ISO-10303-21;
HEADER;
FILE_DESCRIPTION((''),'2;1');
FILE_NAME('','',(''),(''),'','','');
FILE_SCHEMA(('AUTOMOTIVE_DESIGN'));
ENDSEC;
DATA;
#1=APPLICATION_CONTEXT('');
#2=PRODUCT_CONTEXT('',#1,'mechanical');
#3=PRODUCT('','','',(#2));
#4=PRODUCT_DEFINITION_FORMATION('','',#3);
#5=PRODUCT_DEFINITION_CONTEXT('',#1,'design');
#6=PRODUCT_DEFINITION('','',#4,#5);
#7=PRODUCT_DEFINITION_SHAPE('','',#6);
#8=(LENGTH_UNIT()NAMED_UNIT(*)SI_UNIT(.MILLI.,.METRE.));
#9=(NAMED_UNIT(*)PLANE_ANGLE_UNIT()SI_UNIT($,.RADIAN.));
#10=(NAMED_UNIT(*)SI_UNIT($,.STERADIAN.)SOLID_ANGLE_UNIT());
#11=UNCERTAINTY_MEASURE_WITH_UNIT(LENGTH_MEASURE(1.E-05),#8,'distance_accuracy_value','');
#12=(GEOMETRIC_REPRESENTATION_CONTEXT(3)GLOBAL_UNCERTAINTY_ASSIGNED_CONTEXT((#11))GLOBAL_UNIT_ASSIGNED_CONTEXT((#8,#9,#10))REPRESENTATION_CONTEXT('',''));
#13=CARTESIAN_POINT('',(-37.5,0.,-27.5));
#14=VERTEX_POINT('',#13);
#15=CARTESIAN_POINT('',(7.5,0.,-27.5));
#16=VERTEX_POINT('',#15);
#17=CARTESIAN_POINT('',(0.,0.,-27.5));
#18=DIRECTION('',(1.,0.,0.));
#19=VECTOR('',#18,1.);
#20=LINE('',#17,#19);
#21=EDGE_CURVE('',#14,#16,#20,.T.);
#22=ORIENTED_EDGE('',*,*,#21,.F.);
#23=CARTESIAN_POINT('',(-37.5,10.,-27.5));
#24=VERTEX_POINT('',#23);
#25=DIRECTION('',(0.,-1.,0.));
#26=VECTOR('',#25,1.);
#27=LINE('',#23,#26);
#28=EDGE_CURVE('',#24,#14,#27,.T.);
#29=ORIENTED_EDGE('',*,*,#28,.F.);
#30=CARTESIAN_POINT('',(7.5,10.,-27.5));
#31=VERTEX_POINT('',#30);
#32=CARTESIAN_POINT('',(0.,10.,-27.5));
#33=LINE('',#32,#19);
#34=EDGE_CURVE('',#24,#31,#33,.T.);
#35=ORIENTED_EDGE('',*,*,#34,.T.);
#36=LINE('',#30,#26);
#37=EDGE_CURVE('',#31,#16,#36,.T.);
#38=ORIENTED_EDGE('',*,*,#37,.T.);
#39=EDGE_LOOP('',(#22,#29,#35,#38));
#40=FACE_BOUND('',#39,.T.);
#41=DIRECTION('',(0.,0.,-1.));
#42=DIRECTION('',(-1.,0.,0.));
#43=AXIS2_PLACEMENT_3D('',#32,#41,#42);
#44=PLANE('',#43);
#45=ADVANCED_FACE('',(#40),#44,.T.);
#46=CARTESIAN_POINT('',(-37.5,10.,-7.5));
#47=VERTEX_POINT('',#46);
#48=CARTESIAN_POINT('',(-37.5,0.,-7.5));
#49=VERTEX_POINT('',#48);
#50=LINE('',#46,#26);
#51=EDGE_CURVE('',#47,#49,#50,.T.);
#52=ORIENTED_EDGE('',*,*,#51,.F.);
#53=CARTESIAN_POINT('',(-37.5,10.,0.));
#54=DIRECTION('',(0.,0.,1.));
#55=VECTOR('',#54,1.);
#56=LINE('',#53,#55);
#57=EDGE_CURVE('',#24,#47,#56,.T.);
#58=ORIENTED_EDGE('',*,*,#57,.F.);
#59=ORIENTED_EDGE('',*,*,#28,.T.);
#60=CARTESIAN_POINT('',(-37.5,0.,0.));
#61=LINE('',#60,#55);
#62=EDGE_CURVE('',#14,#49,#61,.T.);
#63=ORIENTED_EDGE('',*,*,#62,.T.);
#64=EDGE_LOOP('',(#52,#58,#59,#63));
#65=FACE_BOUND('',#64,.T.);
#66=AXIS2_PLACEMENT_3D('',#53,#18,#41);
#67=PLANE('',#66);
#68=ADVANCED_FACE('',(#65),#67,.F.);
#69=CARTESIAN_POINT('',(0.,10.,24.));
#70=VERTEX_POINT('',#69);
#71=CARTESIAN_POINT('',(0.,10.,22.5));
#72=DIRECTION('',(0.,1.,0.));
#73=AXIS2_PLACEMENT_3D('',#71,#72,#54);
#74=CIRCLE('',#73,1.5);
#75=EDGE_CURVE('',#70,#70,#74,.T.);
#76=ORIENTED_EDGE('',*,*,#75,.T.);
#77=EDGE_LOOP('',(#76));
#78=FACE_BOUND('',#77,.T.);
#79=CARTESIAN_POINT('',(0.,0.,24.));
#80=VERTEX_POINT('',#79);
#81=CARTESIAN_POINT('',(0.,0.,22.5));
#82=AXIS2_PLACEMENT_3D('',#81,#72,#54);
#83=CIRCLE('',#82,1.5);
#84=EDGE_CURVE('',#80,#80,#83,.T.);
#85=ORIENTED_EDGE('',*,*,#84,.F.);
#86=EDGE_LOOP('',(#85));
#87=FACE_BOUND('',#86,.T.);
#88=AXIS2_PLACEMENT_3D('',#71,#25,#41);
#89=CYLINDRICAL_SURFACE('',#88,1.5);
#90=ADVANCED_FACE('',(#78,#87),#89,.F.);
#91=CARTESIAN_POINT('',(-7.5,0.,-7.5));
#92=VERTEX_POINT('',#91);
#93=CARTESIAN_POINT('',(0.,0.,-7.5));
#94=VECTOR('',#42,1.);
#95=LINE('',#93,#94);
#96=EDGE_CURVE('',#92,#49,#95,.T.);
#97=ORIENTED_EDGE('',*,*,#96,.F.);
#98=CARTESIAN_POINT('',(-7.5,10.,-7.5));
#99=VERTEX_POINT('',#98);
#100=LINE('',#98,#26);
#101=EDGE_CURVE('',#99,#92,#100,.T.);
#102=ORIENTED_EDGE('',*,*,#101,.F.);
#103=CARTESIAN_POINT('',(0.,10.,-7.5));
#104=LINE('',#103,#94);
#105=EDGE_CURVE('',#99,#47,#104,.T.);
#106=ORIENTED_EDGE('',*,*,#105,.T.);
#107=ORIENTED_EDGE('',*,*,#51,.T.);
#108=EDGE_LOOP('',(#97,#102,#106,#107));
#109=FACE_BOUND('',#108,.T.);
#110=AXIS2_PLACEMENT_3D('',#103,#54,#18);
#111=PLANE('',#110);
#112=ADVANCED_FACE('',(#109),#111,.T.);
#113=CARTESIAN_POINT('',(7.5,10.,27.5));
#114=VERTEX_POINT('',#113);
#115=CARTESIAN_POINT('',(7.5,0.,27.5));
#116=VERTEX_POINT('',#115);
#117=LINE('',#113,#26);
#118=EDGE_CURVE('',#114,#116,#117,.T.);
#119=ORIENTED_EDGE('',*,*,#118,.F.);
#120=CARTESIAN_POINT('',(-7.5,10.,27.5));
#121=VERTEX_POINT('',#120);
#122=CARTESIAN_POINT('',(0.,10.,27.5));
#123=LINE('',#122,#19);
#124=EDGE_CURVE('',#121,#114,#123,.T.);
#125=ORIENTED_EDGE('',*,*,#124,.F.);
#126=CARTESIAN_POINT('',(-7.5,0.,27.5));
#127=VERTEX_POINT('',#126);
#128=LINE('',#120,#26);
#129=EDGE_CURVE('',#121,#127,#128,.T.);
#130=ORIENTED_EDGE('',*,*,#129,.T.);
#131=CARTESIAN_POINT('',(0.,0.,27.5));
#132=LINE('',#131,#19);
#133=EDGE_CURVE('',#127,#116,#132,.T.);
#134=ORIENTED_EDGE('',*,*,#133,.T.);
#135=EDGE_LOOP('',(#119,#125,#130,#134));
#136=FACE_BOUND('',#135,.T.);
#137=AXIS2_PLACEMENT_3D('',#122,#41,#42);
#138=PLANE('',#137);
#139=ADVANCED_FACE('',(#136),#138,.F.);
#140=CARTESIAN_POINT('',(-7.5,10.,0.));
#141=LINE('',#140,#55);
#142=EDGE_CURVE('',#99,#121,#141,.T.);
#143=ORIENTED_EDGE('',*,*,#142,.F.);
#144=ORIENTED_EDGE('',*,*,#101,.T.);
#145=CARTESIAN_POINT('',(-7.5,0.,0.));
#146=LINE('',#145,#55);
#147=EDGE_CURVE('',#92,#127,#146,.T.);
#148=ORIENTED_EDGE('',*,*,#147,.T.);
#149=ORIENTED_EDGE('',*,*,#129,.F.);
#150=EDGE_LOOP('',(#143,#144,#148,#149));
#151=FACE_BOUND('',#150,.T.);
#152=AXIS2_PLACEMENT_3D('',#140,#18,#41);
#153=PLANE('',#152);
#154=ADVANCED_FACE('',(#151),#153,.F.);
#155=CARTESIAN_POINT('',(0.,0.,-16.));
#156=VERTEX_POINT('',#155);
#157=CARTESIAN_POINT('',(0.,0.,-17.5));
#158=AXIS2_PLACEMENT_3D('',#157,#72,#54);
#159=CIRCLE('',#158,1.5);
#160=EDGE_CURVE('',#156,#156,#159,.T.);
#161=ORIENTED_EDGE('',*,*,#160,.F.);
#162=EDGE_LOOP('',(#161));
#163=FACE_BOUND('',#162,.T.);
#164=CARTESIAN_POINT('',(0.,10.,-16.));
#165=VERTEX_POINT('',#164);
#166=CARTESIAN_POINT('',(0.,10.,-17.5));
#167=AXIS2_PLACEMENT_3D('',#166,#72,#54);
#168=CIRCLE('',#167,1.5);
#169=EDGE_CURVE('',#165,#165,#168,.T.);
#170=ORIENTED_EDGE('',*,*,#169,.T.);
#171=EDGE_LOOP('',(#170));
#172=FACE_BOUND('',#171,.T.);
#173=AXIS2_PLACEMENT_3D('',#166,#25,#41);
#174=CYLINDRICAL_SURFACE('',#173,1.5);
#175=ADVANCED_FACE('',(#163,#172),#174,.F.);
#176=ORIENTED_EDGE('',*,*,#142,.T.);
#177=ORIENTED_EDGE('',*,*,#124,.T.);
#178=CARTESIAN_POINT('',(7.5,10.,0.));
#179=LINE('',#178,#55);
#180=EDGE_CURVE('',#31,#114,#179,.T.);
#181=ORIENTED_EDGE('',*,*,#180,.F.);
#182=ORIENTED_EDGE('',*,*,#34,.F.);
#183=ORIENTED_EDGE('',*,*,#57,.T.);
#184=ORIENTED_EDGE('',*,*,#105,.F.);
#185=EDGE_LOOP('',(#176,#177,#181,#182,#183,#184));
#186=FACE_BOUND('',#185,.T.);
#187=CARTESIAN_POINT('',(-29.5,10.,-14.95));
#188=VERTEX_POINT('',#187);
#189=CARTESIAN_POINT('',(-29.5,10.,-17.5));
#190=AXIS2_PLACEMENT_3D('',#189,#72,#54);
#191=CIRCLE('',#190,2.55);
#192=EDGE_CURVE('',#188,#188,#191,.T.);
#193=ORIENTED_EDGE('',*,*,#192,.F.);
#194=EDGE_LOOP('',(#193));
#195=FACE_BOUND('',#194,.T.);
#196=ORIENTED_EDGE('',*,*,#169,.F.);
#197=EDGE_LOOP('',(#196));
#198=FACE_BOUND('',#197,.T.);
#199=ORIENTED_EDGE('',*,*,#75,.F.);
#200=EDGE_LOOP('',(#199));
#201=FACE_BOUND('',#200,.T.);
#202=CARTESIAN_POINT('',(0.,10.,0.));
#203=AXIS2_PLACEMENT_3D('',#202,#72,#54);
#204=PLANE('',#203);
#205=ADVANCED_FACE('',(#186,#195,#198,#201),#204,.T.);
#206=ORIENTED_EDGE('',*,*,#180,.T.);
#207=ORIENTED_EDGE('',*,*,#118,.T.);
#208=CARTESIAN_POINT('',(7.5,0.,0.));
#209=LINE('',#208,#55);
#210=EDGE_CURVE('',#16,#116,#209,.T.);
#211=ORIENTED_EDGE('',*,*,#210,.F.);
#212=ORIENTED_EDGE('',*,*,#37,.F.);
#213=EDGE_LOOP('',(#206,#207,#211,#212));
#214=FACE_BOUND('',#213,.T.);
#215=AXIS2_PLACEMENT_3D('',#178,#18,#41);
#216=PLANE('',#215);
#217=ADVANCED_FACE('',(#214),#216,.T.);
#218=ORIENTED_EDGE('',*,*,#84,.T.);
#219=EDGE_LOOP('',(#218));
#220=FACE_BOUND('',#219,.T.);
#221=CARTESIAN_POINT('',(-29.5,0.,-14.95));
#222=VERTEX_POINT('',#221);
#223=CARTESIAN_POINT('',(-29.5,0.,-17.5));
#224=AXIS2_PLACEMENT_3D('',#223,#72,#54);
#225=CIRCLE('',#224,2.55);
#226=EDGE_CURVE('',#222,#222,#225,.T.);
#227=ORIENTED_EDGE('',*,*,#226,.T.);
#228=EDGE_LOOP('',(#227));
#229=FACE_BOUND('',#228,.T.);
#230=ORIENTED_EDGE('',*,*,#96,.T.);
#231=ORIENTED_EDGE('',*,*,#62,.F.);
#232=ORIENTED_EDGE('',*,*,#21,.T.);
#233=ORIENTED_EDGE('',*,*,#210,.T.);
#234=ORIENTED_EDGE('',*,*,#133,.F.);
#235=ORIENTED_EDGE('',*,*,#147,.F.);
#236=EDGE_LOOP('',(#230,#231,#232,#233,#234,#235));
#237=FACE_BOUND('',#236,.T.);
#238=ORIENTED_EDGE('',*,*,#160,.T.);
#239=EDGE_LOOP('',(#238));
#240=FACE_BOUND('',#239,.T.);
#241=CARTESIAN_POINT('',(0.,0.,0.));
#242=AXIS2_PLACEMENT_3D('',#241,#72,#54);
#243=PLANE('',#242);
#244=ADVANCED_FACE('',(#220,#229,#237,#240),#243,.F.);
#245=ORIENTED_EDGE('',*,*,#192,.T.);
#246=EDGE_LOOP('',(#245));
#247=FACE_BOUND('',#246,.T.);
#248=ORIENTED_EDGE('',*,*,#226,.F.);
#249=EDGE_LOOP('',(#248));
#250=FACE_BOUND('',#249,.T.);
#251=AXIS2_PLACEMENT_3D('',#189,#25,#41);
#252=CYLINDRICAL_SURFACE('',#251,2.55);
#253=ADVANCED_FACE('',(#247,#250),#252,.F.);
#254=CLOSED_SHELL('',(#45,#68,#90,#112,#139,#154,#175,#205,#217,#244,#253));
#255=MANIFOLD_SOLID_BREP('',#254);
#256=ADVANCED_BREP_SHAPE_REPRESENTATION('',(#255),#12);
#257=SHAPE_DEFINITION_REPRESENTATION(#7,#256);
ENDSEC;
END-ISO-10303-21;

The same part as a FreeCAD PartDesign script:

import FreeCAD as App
import Part
import Sketcher

V = App.Vector


def add_polygon(sketch, points):
    """Adds a closed chain of lines whose ends are joined by coincident constraints."""
    first, n = sketch.GeometryCount, len(points)
    for a, b in zip(points, points[1:] + points[:1]):
        sketch.addGeometry(Part.LineSegment(App.Vector(*a, 0), App.Vector(*b, 0)), False)
    for i in range(n):
        sketch.addConstraint(Sketcher.Constraint("Coincident", first + i, 2, first + (i + 1) % n, 1))

doc = App.newDocument("Part")
body = doc.addObject("PartDesign::Body", "Body")

sketch1 = body.newObject("Sketcher::SketchObject", "Sketch")
sketch1.AttachmentSupport = (doc.getObject("XZ_Plane"), [""])
sketch1.MapMode = "FlatFace"
add_polygon(sketch1, [(-7.5, -7.5), (-7.5, 27.5), (7.5, 27.5), (7.5, -27.5), (-37.5, -27.5), (-37.5, -7.5)])
sketch1.addGeometry(Part.Circle(V(0, 22.5, 0), V(0, 0, 1), 1.5), False)
sketch1.addGeometry(Part.Circle(V(0, -17.5, 0), V(0, 0, 1), 1.5), False)
sketch1.addGeometry(Part.Circle(V(-29.5, -17.5, 0), V(0, 0, 1), 2.55), False)
sketch1.addConstraint([
    Sketcher.Constraint("Vertical", 0),
    Sketcher.Constraint("Horizontal", 1),
    Sketcher.Constraint("Vertical", 2),
    Sketcher.Constraint("Horizontal", 3),
    Sketcher.Constraint("Vertical", 4),
    Sketcher.Constraint("Horizontal", 5),
    Sketcher.Constraint("Equal", 6, 7),
    Sketcher.Constraint("Symmetric", 0, 2, 2, 2, -1, 1),
    Sketcher.Constraint("PointOnObject", 6, 3, -2),
    Sketcher.Constraint("PointOnObject", 7, 3, -2),
    Sketcher.Constraint("Horizontal", 7, 3, 8, 3),
    Sketcher.Constraint("Diameter", 6, 3.0),
    Sketcher.Constraint("Diameter", 8, 5.1),
    Sketcher.Constraint("DistanceX", 1, 1, 1, 2, 15.0),
    Sketcher.Constraint("DistanceX", 3, 2, 3, 1, 45.0),
    Sketcher.Constraint("DistanceY", 0, 1, 0, 2, 35.0),
    Sketcher.Constraint("DistanceY", 2, 2, 2, 1, 55.0),
    Sketcher.Constraint("DistanceY", 7, 3, 6, 3, 40.0),
    Sketcher.Constraint("DistanceY", 6, 3, 0, 2, 5.0),
    Sketcher.Constraint("DistanceX", 8, 3, 0, 2, 22.0),
])
pad1 = body.newObject("PartDesign::Pad", "Pad")
pad1.Profile = sketch1
pad1.Length = 10
pad1.Reversed = True

doc.recompute()
